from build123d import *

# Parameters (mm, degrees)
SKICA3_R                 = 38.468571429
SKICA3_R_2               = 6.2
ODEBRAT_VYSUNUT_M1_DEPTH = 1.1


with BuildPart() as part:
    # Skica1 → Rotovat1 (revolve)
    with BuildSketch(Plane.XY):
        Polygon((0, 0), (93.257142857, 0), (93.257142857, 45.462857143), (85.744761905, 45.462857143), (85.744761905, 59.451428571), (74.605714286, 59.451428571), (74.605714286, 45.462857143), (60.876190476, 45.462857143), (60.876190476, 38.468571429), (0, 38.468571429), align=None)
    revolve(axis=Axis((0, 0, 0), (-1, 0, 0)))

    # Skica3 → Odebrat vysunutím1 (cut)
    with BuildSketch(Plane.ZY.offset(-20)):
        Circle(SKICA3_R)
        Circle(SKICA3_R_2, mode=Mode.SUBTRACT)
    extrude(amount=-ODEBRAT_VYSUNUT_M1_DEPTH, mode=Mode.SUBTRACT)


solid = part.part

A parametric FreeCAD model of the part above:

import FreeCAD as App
import Part
import Sketcher
from FreeCAD import Vector


def add_polygon(sketch, points):
    """Adds a closed chain of lines whose ends are joined by coincident constraints."""
    first, n = sketch.GeometryCount, len(points)
    for a, b in zip(points, points[1:] + points[:1]):
        sketch.addGeometry(Part.LineSegment(App.Vector(*a, 0), App.Vector(*b, 0)), False)
    for i in range(n):
        sketch.addConstraint(Sketcher.Constraint("Coincident", first + i, 2, first + (i + 1) % n, 1))

doc = App.newDocument("Part")
body = doc.addObject("PartDesign::Body", "Body")

# Sketch on XY plane
sketch1 = body.newObject("Sketcher::SketchObject", "Sketch")
sketch1.AttachmentSupport = (doc.getObject("XY_Plane"), [""])
sketch1.MapMode = "FlatFace"
add_polygon(sketch1, [(0, 0), (93, 0), (93, 45), (86, 45), (86, 59), (75, 59), (75, 45), (61, 45), (61, 38), (0, 38)])  # lines 0-9
sketch1.addConstraint([
    Sketcher.Constraint("Horizontal", 0),
    Sketcher.Constraint("Vertical", 1),
    Sketcher.Constraint("Horizontal", 2),
    Sketcher.Constraint("Vertical", 3),
    Sketcher.Constraint("Horizontal", 4),
    Sketcher.Constraint("Vertical", 5),
    Sketcher.Constraint("Horizontal", 6),
    Sketcher.Constraint("Vertical", 7),
    Sketcher.Constraint("Horizontal", 8),
    Sketcher.Constraint("Vertical", 9),
    Sketcher.Constraint("Coincident", 9, 2, -1, 1),
    Sketcher.Constraint("Horizontal", 2, 2, 5, 2),
    Sketcher.Constraint("DistanceX", 2, 2, 2, 1, 7.512381),
    Sketcher.Constraint("DistanceX", 8, 2, 8, 1, 60.87619),
    Sketcher.Constraint("DistanceY", 3, 1, 3, 2, 13.988571),
    Sketcher.Constraint("DistanceY", 9, 2, 9, 1, 38.468571),
    Sketcher.Constraint("DistanceX", 0, 1, 0, 2, 93.257143),
    Sketcher.Constraint("DistanceX", 4, 2, 4, 1, 11.139048),
    Sketcher.Constraint("DistanceY", 1, 1, 1, 2, 45.462857),
])
revolution = body.newObject("PartDesign::Revolution", "Revolution")
revolution.Profile = sketch1
revolution.ReferenceAxis = (sketch1, ["H_Axis"])
revolution.Angle = 360

# Sketch on YZ plane
sketch2 = body.newObject("Sketcher::SketchObject", "Sketch001")
sketch2.AttachmentSupport = (doc.getObject("YZ_Plane"), [""])
sketch2.MapMode = "FlatFace"
sketch2.AttachmentOffset = App.Placement(Vector(0, 0, 20), App.Rotation())
sketch2.addGeometry([
    Part.Circle(Vector(0, 0, 0), Vector(0, 0, 1), 38),
    Part.Circle(Vector(0, 0, 0), Vector(0, 0, 1), 6),
], False)
sketch2.addConstraint([
    Sketcher.Constraint("Coincident", 0, 3, -1, 1),
    Sketcher.Constraint("Coincident", 1, 3, -1, 1),
    Sketcher.Constraint("Diameter", 1, 12.4),
    Sketcher.Constraint("Diameter", 0, 76.937143),
])
pocket1 = body.newObject("PartDesign::Pocket", "Pocket")
pocket1.Profile = sketch2
pocket1.Length = 1.1
pocket1.Reversed = True

doc.recompute()
